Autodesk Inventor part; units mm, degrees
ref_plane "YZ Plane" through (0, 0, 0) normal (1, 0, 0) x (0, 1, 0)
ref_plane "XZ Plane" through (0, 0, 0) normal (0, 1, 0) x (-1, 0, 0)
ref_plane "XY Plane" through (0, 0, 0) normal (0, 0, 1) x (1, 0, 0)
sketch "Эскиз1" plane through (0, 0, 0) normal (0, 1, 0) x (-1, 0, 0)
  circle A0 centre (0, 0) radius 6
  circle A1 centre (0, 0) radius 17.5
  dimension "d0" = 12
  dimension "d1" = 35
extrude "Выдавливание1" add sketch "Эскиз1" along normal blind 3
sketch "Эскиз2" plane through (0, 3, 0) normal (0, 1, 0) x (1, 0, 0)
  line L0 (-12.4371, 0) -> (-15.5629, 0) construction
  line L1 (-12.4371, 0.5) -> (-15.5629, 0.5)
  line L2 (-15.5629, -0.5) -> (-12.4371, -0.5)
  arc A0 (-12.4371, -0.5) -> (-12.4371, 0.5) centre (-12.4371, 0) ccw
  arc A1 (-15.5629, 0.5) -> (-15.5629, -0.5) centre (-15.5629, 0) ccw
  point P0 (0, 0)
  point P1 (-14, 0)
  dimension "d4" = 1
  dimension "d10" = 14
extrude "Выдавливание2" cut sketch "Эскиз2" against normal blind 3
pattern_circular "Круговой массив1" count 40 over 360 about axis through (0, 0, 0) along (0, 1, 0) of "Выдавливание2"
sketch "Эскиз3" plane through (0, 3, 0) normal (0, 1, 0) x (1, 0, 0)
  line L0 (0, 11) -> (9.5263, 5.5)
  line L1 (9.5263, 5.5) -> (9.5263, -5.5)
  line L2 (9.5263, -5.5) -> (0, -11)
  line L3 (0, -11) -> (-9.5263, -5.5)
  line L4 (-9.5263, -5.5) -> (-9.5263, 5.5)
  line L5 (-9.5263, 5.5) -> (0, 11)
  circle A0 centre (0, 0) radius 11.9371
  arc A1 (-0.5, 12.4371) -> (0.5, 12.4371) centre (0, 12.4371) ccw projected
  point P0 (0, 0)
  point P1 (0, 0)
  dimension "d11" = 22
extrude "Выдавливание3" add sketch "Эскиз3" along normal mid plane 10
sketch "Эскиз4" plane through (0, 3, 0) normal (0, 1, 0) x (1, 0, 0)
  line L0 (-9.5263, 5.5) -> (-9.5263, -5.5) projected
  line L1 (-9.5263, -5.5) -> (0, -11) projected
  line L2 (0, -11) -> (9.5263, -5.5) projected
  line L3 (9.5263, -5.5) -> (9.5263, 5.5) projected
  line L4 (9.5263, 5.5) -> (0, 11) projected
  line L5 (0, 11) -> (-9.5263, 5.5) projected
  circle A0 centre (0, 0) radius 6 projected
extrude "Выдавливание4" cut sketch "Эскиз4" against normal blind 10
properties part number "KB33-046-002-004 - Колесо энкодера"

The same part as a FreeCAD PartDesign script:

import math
import FreeCAD as App
import Part
import Sketcher
Q = App.Units.Quantity

doc = App.newDocument("Part")
body = doc.addObject("PartDesign::Body", "Body")

# Sketch on XZ plane
sketch1 = body.newObject("Sketcher::SketchObject", "Sketch")
sketch1.AttachmentSupport = (doc.getObject("XZ_Plane"), [""])
sketch1.MapMode = "FlatFace"
sketch1.addGeometry(Part.Circle(App.Vector(0, 0, 0), App.Vector(0, 0, 1), 18), False)
sketch1.addGeometry(Part.Circle(App.Vector(0, 0, 0), App.Vector(0, 0, 1), 6), False)
sketch1.addConstraint(Sketcher.Constraint("Coincident", 0, 3, -1, 1))
sketch1.addConstraint(Sketcher.Constraint("Coincident", 1, 3, -1, 1))
sketch1.addConstraint(Sketcher.Constraint("Diameter", 0, Q("35 mm")))
sketch1.addConstraint(Sketcher.Constraint("Diameter", 1, Q("12 mm")))
pad1 = body.newObject("PartDesign::Pad", "Pad")
pad1.Profile = sketch1
pad1.Length = 3
pad1.Reversed = True

# Sketch on XZ plane
sketch2 = body.newObject("Sketcher::SketchObject", "Sketch001")
sketch2.AttachmentSupport = (doc.getObject("XZ_Plane"), [""])
sketch2.MapMode = "FlatFace"
sketch2.AttachmentOffset = App.Placement(App.Vector(0, 0, -3), App.Rotation())
sketch2.addGeometry(Part.ArcOfCircle(Part.Circle(App.Vector(-12.4, 0, 0), App.Vector(0, 0, 1), 0.5), math.radians(-90), math.radians(90)), False)
sketch2.addGeometry(Part.LineSegment(App.Vector(-12.4, -0.5, 0), App.Vector(-15.6, -0.5, 0)), False)
sketch2.addGeometry(Part.ArcOfCircle(Part.Circle(App.Vector(-15.6, 0, 0), App.Vector(0, 0, 1), 0.5), math.radians(90), math.radians(270)), False)
sketch2.addGeometry(Part.LineSegment(App.Vector(-15.6, 0.5, 0), App.Vector(-12.4, 0.5, 0)), False)
sketch2.addConstraint(Sketcher.Constraint("Tangent", 0, 1, 1, 1))
sketch2.addConstraint(Sketcher.Constraint("Tangent", 1, 2, 2, 2))
sketch2.addConstraint(Sketcher.Constraint("Tangent", 2, 1, 3, 1))
sketch2.addConstraint(Sketcher.Constraint("Tangent", 3, 2, 0, 2))
sketch2.addConstraint(Sketcher.Constraint("Horizontal", 1))
sketch2.addConstraint(Sketcher.Constraint("Horizontal", 3))
sketch2.addConstraint(Sketcher.Constraint("PointOnObject", 0, 3, -1))
sketch2.addConstraint(Sketcher.Constraint("Radius", 0, Q("0.5 mm")))
sketch2.addConstraint(Sketcher.Constraint("DistanceX", 1, 2, 1, 1, Q("3.1258 mm")))
sketch2.addConstraint(Sketcher.Constraint("DistanceX", 0, 3, -1, 1, Q("12.437 mm")))
pocket1 = body.newObject("PartDesign::Pocket", "Pocket")
pocket1.Profile = sketch2
pocket1.Length = 3
pocket1.Reversed = True
doc.recompute()

polarpattern = body.newObject("PartDesign::PolarPattern", "PolarPattern")
polarpattern.Originals = [pocket1]
polarpattern.Axis = (doc.getObject("Y_Axis"), [""])
polarpattern.Angle = 360
polarpattern.Occurrences = 40
body.Tip = polarpattern

# Sketch on XZ plane
sketch3 = body.newObject("Sketcher::SketchObject", "Sketch002")
sketch3.AttachmentSupport = (doc.getObject("XZ_Plane"), [""])
sketch3.MapMode = "FlatFace"
sketch3.AttachmentOffset = App.Placement(App.Vector(0, 0, -3), App.Rotation())
sketch3.addGeometry(Part.Circle(App.Vector(0, 0, 0), App.Vector(0, 0, 1), 12), False)
sketch3.addGeometry(Part.LineSegment(App.Vector(-10, -6, 0), App.Vector(0, -11, 0)), False)
sketch3.addGeometry(Part.LineSegment(App.Vector(0, -11, 0), App.Vector(10, -6, 0)), False)
sketch3.addGeometry(Part.LineSegment(App.Vector(10, -6, 0), App.Vector(10, 6, 0)), False)
sketch3.addGeometry(Part.LineSegment(App.Vector(10, 6, 0), App.Vector(0, 11, 0)), False)
sketch3.addGeometry(Part.LineSegment(App.Vector(0, 11, 0), App.Vector(-10, 6, 0)), False)
sketch3.addGeometry(Part.LineSegment(App.Vector(-10, 6, 0), App.Vector(-10, -6, 0)), False)
sketch3.addConstraint(Sketcher.Constraint("Coincident", 1, 2, 2, 1))
sketch3.addConstraint(Sketcher.Constraint("Coincident", 2, 2, 3, 1))
sketch3.addConstraint(Sketcher.Constraint("Coincident", 3, 2, 4, 1))
sketch3.addConstraint(Sketcher.Constraint("Coincident", 4, 2, 5, 1))
sketch3.addConstraint(Sketcher.Constraint("Coincident", 5, 2, 6, 1))
sketch3.addConstraint(Sketcher.Constraint("Coincident", 6, 2, 1, 1))
sketch3.addConstraint(Sketcher.Constraint("Vertical", 3))
sketch3.addConstraint(Sketcher.Constraint("Vertical", 6))
sketch3.addConstraint(Sketcher.Constraint("Coincident", 0, 3, -1, 1))
sketch3.addConstraint(Sketcher.Constraint("Symmetric", 1, 2, 4, 2, -1, 1))
sketch3.addConstraint(Sketcher.Constraint("Symmetric", 2, 2, 5, 2, -1, 1))
sketch3.addConstraint(Sketcher.Constraint("PointOnObject", 1, 2, -2))
sketch3.addConstraint(Sketcher.Constraint("Parallel", 1, 4))
sketch3.addConstraint(Sketcher.Constraint("Horizontal", 3, 2, 5, 2))
sketch3.addConstraint(Sketcher.Constraint("DistanceY", 1, 2, 4, 2, Q("22 mm")))
sketch3.addConstraint(Sketcher.Constraint("DistanceY", 3, 1, 3, 2, Q("11 mm")))
sketch3.addConstraint(Sketcher.Constraint("Angle", 1, Q("-30 deg")))
sketch3.addConstraint(Sketcher.Constraint("Diameter", 0, Q("23.8742 mm")))
pad2 = body.newObject("PartDesign::Pad", "Pad001")
pad2.Profile = sketch3
pad2.Length = 10
pad2.Midplane = True

# Sketch on XZ plane
sketch4 = body.newObject("Sketcher::SketchObject", "Sketch003")
sketch4.AttachmentSupport = (doc.getObject("XZ_Plane"), [""])
sketch4.MapMode = "FlatFace"
sketch4.AttachmentOffset = App.Placement(App.Vector(0, 0, -3), App.Rotation())
sketch4.addGeometry(Part.LineSegment(App.Vector(0, -11, 0), App.Vector(-10, -6, 0)), False)
sketch4.addGeometry(Part.LineSegment(App.Vector(-10, -6, 0), App.Vector(-10, 6, 0)), False)
sketch4.addGeometry(Part.LineSegment(App.Vector(-10, 6, 0), App.Vector(0, 11, 0)), False)
sketch4.addGeometry(Part.LineSegment(App.Vector(0, 11, 0), App.Vector(10, 6, 0)), False)
sketch4.addGeometry(Part.LineSegment(App.Vector(10, 6, 0), App.Vector(10, -6, 0)), False)
sketch4.addGeometry(Part.LineSegment(App.Vector(10, -6, 0), App.Vector(0, -11, 0)), False)
sketch4.addGeometry(Part.Circle(App.Vector(0, 0, 0), App.Vector(0, 0, 1), 6), False)
sketch4.addConstraint(Sketcher.Constraint("Coincident", 0, 2, 1, 1))
sketch4.addConstraint(Sketcher.Constraint("Coincident", 1, 2, 2, 1))
sketch4.addConstraint(Sketcher.Constraint("Coincident", 2, 2, 3, 1))
sketch4.addConstraint(Sketcher.Constraint("Coincident", 3, 2, 4, 1))
sketch4.addConstraint(Sketcher.Constraint("Coincident", 4, 2, 5, 1))
sketch4.addConstraint(Sketcher.Constraint("Coincident", 5, 2, 0, 1))
sketch4.addConstraint(Sketcher.Constraint("Vertical", 1))
sketch4.addConstraint(Sketcher.Constraint("Vertical", 4))
sketch4.addConstraint(Sketcher.Constraint("Coincident", 6, 3, -1, 1))
sketch4.addConstraint(Sketcher.Constraint("Symmetric", 0, 2, 3, 2, -1, 1))
sketch4.addConstraint(Sketcher.Constraint("Symmetric", 2, 2, 5, 2, -1, 1))
sketch4.addConstraint(Sketcher.Constraint("PointOnObject", 2, 2, -2))
sketch4.addConstraint(Sketcher.Constraint("Parallel", 2, 5))
sketch4.addConstraint(Sketcher.Constraint("Horizontal", 1, 2, 3, 2))
sketch4.addConstraint(Sketcher.Constraint("Diameter", 6, Q("12 mm")))
sketch4.addConstraint(Sketcher.Constraint("DistanceY", 1, 1, 1, 2, Q("11 mm")))
sketch4.addConstraint(Sketcher.Constraint("Angle", 0, Q("150 deg")))
sketch4.addConstraint(Sketcher.Constraint("Distance", 0, Q("11 mm")))
pocket2 = body.newObject("PartDesign::Pocket", "Pocket001")
pocket2.Profile = sketch4
pocket2.Length = 10
pocket2.Reversed = True

doc.recompute()
